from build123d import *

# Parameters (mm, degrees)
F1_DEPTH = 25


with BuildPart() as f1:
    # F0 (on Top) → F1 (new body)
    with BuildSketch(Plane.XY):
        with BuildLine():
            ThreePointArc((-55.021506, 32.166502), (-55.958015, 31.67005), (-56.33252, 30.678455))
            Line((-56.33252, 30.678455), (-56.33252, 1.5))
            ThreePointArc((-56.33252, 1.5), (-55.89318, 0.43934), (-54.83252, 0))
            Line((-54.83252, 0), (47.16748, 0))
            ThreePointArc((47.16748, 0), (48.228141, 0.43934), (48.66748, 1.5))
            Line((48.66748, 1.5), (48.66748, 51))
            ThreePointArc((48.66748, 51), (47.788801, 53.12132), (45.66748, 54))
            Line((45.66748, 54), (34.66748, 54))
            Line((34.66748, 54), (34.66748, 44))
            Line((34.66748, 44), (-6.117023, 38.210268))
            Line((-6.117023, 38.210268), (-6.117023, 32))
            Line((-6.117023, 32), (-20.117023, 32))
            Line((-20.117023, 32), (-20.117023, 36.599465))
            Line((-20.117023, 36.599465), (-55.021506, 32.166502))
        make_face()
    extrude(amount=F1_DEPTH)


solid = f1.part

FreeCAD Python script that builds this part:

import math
import FreeCAD as App
import Part
import Sketcher

V = App.Vector
Q = App.Units.Quantity

doc = App.newDocument("Part")
body = doc.addObject("PartDesign::Body", "Body")

# Sketch on XY plane
sketch1 = body.newObject("Sketcher::SketchObject", "Sketch")
sketch1.AttachmentSupport = (doc.getObject("XY_Plane"), [""])
sketch1.MapMode = "FlatFace"
sketch1.addGeometry([
    Part.ArcOfCircle(Part.Circle(V(-54.83252, 30.678455, 0), V(0, 0, 1), 1.5), math.radians(97.237972), math.radians(179.999992)),  # 0
    Part.LineSegment(V(-56.33252, 30.678455, 0), V(-56.33252, 1.5, 0)),  # 1
    Part.ArcOfCircle(Part.Circle(V(-54.832519, 1.500001, 0), V(0, 0, 1), 1.500001), math.radians(-179.999978), math.radians(-90.000022)),  # 2
    Part.LineSegment(V(-54.83252, 0, 0), V(47.16748, 0, 0)),  # 3
    Part.ArcOfCircle(Part.Circle(V(47.167481, 1.499999, 0), V(0, 0, 1), 1.499999), math.radians(-90.000043), math.radians(0.000043)),  # 4
    Part.LineSegment(V(48.66748, 1.5, 0), V(48.66748, 51, 0)),  # 5
    Part.ArcOfCircle(Part.Circle(V(45.667481, 51.000001, 0), V(0, 0, 1), 2.999999), math.radians(-0.00001), math.radians(90.00001)),  # 6
    Part.LineSegment(V(45.66748, 54, 0), V(34.66748, 54, 0)),  # 7
    Part.LineSegment(V(34.66748, 54, 0), V(34.66748, 44, 0)),  # 8
    Part.LineSegment(V(34.66748, 44, 0), V(-6.117023, 38.210268, 0)),  # 9
    Part.LineSegment(V(-6.117023, 38.210268, 0), V(-6.117023, 32, 0)),  # 10
    Part.LineSegment(V(-6.117023, 32, 0), V(-20.117023, 32, 0)),  # 11
    Part.LineSegment(V(-20.117023, 32, 0), V(-20.117023, 36.599465, 0)),  # 12
    Part.LineSegment(V(-20.117023, 36.599465, 0), V(-55.021506, 32.166502, 0)),  # 13
], False)
sketch1.addConstraint([
    Sketcher.Constraint("Coincident", 0, 2, 1, 1),
    Sketcher.Constraint("Coincident", 1, 2, 2, 1),
    Sketcher.Constraint("Coincident", 2, 2, 3, 1),
    Sketcher.Constraint("Coincident", 3, 2, 4, 1),
    Sketcher.Constraint("Coincident", 4, 2, 5, 1),
    Sketcher.Constraint("Coincident", 5, 2, 6, 1),
    Sketcher.Constraint("Coincident", 6, 2, 7, 1),
    Sketcher.Constraint("Coincident", 7, 2, 8, 1),
    Sketcher.Constraint("Coincident", 8, 2, 9, 1),
    Sketcher.Constraint("Coincident", 9, 2, 10, 1),
    Sketcher.Constraint("Coincident", 10, 2, 11, 1),
    Sketcher.Constraint("Coincident", 11, 2, 12, 1),
    Sketcher.Constraint("Coincident", 12, 2, 13, 1),
    Sketcher.Constraint("Coincident", 13, 2, 0, 1),
    Sketcher.Constraint("Vertical", 1),
    Sketcher.Constraint("Horizontal", 3),
    Sketcher.Constraint("Vertical", 5),
    Sketcher.Constraint("Horizontal", 7),
    Sketcher.Constraint("Vertical", 8),
    Sketcher.Constraint("Vertical", 10),
    Sketcher.Constraint("Horizontal", 11),
    Sketcher.Constraint("Vertical", 12),
    Sketcher.Constraint("PointOnObject", 2, 2, -1),
    Sketcher.Constraint("Radius", 6, Q("2.999999 mm")),
    Sketcher.Constraint("Radius", 0, Q("1.5 mm")),
    Sketcher.Constraint("Radius", 2, Q("1.500001 mm")),
    Sketcher.Constraint("Radius", 4, Q("1.499999 mm")),
    Sketcher.Constraint("DistanceX", 3, 1, 3, 2, Q("102 mm")),
    Sketcher.Constraint("DistanceX", 7, 2, 7, 1, Q("11 mm")),
    Sketcher.Constraint("DistanceX", 11, 2, 11, 1, Q("14 mm")),
    Sketcher.Constraint("DistanceY", 8, 2, 8, 1, Q("10 mm")),
    Sketcher.Constraint("DistanceY", 5, 1, 5, 2, Q("49.5 mm")),
    Sketcher.Constraint("DistanceY", -1, 1, 6, 3, Q("51.000001 mm")),
    Sketcher.Constraint("DistanceY", -1, 1, 5, 2, Q("51 mm")),
    Sketcher.Constraint("DistanceY", -1, 1, 10, 2, Q("32 mm")),
    Sketcher.Constraint("DistanceX", 2, 3, 4, 3, Q("102.000001 mm")),
    Sketcher.Constraint("DistanceX", 2, 2, 4, 3, Q("102.000001 mm")),
    Sketcher.Constraint("DistanceX", 6, 2, 5, 2, Q("3 mm")),
    Sketcher.Constraint("DistanceY", -1, 1, 1, 2, Q("1.5 mm")),
    Sketcher.Constraint("DistanceY", 2, 3, 13, 2, Q("30.666501 mm")),
    Sketcher.Constraint("DistanceY", 1, 2, 1, 1, Q("29.178455 mm")),
    Sketcher.Constraint("DistanceY", 10, 2, 10, 1, Q("6.210268 mm")),
    Sketcher.Constraint("DistanceY", 12, 1, 12, 2, Q("4.599465 mm")),
    Sketcher.Constraint("DistanceX", 0, 3, -1, 1, Q("54.83252 mm")),
    Sketcher.Constraint("DistanceY", 0, 3, 12, 2, Q("5.92101 mm")),
    Sketcher.Constraint("Distance", 9, Q("41.193406 mm")),
])
pad1 = body.newObject("PartDesign::Pad", "Pad")
pad1.Profile = sketch1
pad1.Length = 25

doc.recompute()
